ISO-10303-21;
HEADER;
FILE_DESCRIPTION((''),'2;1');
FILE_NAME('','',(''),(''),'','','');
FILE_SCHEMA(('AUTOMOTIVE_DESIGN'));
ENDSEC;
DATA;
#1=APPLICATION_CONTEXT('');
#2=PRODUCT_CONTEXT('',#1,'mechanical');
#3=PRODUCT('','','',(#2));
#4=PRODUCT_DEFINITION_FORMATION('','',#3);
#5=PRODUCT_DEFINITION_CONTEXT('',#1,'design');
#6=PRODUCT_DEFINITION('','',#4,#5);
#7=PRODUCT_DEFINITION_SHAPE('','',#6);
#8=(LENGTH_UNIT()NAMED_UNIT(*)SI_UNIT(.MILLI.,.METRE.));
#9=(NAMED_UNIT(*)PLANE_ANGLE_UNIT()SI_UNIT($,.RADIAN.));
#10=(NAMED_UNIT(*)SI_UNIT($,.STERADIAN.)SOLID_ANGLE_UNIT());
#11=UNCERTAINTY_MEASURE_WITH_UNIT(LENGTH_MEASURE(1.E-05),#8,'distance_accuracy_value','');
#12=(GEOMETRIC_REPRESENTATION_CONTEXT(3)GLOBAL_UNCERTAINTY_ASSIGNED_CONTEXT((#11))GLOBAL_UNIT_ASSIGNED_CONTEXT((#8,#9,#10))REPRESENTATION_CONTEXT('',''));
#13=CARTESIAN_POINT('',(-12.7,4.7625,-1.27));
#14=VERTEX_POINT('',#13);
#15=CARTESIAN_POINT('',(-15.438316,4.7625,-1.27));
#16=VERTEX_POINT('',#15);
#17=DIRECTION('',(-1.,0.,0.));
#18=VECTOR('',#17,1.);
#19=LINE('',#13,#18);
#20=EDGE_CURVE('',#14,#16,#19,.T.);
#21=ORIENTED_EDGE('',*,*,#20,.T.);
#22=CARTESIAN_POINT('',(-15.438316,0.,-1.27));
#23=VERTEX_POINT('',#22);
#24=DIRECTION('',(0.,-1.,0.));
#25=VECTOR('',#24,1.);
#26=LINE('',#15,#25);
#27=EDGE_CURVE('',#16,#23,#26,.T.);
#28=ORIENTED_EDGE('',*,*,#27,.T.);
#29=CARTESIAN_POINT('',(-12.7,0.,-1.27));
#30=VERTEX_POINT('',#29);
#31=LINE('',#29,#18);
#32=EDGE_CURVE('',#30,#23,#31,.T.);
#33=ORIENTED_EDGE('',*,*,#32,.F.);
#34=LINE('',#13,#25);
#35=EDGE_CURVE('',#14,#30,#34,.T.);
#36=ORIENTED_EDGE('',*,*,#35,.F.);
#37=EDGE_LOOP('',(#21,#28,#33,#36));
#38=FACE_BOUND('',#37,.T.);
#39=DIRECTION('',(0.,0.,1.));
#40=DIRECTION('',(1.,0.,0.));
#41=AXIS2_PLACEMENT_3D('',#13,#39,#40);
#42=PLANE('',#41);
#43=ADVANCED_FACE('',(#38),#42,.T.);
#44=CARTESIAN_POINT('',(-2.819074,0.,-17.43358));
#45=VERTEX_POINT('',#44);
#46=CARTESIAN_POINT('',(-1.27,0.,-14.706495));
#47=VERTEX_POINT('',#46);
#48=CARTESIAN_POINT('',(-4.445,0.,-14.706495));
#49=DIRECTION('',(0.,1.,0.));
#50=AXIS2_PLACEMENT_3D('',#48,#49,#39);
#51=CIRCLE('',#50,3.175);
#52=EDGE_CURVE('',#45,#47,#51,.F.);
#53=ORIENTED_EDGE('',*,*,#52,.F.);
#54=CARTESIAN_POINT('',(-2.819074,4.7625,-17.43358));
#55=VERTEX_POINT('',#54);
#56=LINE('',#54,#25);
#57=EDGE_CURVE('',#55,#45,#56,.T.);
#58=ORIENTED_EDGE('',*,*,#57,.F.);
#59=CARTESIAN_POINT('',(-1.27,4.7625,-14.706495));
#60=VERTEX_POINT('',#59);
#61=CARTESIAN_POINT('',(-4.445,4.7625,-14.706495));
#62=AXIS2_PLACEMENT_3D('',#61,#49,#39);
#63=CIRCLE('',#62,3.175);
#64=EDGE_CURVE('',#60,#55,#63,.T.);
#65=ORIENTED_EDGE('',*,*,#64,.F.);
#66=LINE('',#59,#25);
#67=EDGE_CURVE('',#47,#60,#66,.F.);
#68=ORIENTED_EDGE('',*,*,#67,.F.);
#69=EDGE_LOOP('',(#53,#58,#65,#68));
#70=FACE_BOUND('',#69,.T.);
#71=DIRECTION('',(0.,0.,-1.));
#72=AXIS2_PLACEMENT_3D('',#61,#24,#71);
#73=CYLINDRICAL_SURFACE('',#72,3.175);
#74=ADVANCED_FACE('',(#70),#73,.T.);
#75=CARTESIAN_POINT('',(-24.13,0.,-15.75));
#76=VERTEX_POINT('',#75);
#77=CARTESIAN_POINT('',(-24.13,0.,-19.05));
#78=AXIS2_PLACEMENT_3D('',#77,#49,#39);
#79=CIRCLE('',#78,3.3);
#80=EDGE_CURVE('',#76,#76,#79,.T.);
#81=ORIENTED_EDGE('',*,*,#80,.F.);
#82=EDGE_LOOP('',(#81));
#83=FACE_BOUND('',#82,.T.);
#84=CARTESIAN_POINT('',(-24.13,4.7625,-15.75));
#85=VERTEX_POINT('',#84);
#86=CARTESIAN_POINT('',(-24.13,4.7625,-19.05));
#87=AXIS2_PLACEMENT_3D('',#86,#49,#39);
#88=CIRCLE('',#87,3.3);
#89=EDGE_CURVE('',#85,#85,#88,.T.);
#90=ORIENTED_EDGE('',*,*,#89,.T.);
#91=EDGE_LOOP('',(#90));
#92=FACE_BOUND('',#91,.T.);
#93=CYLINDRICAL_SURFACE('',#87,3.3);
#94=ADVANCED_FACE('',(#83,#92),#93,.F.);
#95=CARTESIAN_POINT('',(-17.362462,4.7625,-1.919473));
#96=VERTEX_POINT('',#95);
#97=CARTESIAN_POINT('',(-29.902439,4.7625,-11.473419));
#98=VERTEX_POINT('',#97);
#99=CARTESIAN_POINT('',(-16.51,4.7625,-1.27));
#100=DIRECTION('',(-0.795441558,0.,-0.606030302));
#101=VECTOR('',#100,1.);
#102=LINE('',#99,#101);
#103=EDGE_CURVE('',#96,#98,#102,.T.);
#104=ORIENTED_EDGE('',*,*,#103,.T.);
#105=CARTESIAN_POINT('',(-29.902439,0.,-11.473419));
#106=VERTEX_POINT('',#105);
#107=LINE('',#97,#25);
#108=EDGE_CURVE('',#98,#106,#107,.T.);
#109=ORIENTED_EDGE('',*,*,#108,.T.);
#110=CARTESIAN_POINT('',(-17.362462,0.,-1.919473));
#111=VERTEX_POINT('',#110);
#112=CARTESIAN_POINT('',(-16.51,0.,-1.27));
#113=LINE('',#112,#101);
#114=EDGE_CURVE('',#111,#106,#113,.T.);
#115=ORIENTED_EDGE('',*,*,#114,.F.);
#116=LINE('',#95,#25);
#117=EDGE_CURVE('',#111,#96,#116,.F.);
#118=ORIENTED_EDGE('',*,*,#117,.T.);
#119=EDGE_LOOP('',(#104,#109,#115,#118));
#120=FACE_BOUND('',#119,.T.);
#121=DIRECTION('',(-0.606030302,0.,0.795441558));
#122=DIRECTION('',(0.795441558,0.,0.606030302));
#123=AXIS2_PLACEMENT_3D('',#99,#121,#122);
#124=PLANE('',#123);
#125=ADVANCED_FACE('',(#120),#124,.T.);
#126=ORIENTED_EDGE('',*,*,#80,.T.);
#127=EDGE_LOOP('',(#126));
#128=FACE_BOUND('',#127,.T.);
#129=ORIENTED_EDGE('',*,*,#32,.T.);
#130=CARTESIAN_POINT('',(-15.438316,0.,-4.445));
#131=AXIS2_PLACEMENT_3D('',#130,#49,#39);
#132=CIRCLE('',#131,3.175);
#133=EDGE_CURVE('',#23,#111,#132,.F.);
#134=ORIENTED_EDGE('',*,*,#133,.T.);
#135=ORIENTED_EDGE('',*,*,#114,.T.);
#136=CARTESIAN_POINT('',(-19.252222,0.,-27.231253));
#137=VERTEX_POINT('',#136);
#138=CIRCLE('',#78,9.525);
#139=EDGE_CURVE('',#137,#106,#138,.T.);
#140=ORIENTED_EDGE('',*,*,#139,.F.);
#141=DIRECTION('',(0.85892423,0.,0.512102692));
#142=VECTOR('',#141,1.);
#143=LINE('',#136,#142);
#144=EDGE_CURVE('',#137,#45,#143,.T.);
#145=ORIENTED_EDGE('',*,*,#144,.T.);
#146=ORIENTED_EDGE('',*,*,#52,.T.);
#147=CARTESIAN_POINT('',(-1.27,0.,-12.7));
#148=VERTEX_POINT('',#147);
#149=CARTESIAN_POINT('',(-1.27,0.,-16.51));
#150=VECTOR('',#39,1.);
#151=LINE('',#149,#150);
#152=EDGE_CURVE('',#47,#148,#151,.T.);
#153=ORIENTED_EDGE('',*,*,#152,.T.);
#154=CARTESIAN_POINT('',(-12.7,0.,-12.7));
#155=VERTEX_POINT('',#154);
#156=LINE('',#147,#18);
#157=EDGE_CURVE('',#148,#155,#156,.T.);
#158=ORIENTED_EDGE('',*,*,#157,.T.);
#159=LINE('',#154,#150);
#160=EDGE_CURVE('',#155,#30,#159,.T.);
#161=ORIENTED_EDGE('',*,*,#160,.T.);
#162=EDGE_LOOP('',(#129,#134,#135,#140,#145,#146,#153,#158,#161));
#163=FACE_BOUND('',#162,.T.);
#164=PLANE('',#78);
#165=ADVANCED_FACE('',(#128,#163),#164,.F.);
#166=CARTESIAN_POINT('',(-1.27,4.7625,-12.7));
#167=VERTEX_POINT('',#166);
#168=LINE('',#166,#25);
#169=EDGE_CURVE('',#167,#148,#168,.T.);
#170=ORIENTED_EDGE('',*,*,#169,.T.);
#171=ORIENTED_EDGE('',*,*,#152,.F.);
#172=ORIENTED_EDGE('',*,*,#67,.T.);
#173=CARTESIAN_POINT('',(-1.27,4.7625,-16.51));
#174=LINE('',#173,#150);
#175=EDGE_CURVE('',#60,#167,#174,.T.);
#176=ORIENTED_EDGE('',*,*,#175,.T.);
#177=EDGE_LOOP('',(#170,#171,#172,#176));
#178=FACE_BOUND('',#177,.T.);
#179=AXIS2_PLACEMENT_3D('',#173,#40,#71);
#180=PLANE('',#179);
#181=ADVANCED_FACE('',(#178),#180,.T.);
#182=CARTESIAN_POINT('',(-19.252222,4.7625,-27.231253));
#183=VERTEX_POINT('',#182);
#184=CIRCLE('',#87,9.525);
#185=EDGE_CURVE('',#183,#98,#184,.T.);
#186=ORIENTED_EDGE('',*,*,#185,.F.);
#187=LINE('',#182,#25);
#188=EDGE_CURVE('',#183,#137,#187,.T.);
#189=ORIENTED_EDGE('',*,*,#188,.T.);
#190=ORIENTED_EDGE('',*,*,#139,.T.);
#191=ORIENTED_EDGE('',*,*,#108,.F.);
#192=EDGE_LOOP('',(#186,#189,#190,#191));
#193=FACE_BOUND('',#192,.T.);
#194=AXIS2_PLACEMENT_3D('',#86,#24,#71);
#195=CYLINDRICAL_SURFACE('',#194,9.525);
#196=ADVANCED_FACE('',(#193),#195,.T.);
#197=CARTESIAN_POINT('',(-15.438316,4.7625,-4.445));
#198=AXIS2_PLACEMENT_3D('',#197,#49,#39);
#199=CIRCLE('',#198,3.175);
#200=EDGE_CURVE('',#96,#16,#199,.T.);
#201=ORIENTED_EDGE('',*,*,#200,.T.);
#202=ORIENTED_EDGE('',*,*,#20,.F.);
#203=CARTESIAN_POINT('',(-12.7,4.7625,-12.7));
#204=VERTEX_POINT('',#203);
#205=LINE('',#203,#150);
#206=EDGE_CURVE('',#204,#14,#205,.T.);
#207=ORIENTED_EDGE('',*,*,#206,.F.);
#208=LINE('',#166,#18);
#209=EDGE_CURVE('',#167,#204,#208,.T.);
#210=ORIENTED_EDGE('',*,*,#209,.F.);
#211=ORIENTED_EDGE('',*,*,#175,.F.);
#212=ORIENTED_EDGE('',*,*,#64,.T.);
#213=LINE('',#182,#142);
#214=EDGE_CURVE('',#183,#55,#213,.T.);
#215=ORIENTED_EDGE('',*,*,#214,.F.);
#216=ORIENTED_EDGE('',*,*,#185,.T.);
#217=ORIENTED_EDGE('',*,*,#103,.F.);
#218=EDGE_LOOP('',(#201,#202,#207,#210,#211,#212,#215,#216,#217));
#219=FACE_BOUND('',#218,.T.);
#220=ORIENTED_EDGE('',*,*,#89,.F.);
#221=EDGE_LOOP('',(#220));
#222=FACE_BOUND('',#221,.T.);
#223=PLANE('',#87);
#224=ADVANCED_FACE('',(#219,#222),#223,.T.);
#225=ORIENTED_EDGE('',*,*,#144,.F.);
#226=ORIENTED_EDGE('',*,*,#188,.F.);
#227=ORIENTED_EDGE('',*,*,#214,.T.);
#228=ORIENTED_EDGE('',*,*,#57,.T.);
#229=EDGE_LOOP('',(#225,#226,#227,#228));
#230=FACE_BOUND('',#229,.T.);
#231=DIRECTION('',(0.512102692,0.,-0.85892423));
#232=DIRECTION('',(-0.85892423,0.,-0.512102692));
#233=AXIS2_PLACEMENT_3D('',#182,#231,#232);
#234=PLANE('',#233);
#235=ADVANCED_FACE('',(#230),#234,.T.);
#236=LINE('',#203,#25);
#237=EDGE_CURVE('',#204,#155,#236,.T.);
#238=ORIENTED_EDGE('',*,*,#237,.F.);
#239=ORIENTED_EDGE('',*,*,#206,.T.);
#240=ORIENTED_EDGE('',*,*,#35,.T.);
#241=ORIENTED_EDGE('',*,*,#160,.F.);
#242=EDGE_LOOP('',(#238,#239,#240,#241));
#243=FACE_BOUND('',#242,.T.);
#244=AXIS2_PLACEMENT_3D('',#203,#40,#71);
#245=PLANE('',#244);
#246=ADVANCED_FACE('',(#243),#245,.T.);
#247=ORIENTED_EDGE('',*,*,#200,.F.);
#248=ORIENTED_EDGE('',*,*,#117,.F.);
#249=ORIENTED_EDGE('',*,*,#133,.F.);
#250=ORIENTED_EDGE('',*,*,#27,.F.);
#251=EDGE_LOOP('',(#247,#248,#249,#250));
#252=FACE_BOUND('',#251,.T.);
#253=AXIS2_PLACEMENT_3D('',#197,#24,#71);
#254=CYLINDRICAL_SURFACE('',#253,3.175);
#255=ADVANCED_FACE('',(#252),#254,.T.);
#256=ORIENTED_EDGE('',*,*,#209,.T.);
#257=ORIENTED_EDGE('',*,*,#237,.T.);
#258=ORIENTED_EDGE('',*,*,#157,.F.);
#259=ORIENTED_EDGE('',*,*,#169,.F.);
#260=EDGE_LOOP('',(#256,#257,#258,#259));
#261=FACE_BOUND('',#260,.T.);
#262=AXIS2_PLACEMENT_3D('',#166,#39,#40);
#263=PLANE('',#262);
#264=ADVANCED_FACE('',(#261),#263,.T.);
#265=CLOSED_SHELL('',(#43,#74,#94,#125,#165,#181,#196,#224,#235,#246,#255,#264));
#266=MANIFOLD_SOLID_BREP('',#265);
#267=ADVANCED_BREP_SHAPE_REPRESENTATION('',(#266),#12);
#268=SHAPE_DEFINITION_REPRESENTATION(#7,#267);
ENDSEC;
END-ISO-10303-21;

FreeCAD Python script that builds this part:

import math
import FreeCAD as App
import Part
import Sketcher
Q = App.Units.Quantity


def edges_at(feature, points):
    """Names of the edges that pass closest to the given points."""
    edges = feature.Shape.Edges
    near = lambda p: min(range(len(edges)), key=lambda i: edges[i].distToShape(Part.Vertex(*p))[0])
    return sorted({f"Edge{near(p) + 1}" for p in points})

doc = App.newDocument("Part")
body = doc.addObject("PartDesign::Body", "Body")

# Sketch on XZ plane
sketch1 = body.newObject("Sketcher::SketchObject", "Sketch")
sketch1.AttachmentSupport = (doc.getObject("XZ_Plane"), [""])
sketch1.MapMode = "FlatFace"
sketch1.addGeometry([
    Part.LineSegment(App.Vector(-1.3, -16.5, 0), App.Vector(-19.3, -27.2, 0)),  # 0
    Part.ArcOfCircle(Part.Circle(App.Vector(-24.1, -19.1, 0), App.Vector(0, 0, 1), 9.5), math.radians(127), math.radians(301)),  # 1
    Part.LineSegment(App.Vector(-29.9, -11.5, 0), App.Vector(-16.5, -1.3, 0)),  # 2
    Part.LineSegment(App.Vector(-16.5, -1.3, 0), App.Vector(-12.7, -1.3, 0)),  # 3
    Part.LineSegment(App.Vector(-12.7, -1.3, 0), App.Vector(-12.7, -12.7, 0)),  # 4
    Part.LineSegment(App.Vector(-12.7, -12.7, 0), App.Vector(-1.3, -12.7, 0)),  # 5
    Part.LineSegment(App.Vector(-1.3, -12.7, 0), App.Vector(-1.3, -16.5, 0)),  # 6
], False)
sketch1.addConstraint([
    Sketcher.Constraint("Tangent", 0, 2, 1, 2),
    Sketcher.Constraint("Tangent", 1, 1, 2, 1),
    Sketcher.Constraint("Coincident", 2, 2, 3, 1),
    Sketcher.Constraint("Coincident", 3, 2, 4, 1),
    Sketcher.Constraint("Coincident", 4, 2, 5, 1),
    Sketcher.Constraint("Coincident", 5, 2, 6, 1),
    Sketcher.Constraint("Coincident", 6, 2, 0, 1),
    Sketcher.Constraint("Horizontal", 3),
    Sketcher.Constraint("Vertical", 4),
    Sketcher.Constraint("Horizontal", 5),
    Sketcher.Constraint("Vertical", 6),
    Sketcher.Constraint("Equal", 5, 4),
    Sketcher.Constraint("Equal", 3, 6),
    Sketcher.Constraint("Radius", 1, Q("0.375 in")),
    Sketcher.Constraint("DistanceX", 3, 1, 3, 2, Q("0.15 in")),
    Sketcher.Constraint("DistanceX", 5, 1, 5, 2, Q("0.45 in")),
    Sketcher.Constraint("DistanceX", 3, 2, -1, 1, Q("0.5 in")),
    Sketcher.Constraint("DistanceY", 4, 2, -1, 1, Q("0.5 in")),
    Sketcher.Constraint("DistanceX", 1, 3, 2, 2, Q("0.3 in")),
    Sketcher.Constraint("DistanceY", 1, 3, 2, 2, Q("0.7 in")),
])
pad1 = body.newObject("PartDesign::Pad", "Pad")
pad1.Profile = sketch1
pad1.Length = Q("0.1875 in")
pad1.Reversed = True
doc.recompute()

fillet = body.newObject("PartDesign::Fillet", "Fillet")
fillet.Base = (pad1, edges_at(pad1, [(-16.51, 2.381, -1.27), (-1.27, 2.381, -16.51)]))
fillet.Radius = Q("0.125 in")

# Sketch on XZ plane
sketch2 = body.newObject("Sketcher::SketchObject", "Sketch001")
sketch2.AttachmentSupport = (doc.getObject("XZ_Plane"), [""])
sketch2.MapMode = "FlatFace"
sketch2.AttachmentOffset = App.Placement(App.Vector(0, 0, -0.1875 * 25.4), App.Rotation())
sketch2.addGeometry(Part.Circle(App.Vector(-24.1, -19.1, 0), App.Vector(0, 0, 1), 3.3), False)
sketch2.addConstraint([
    Sketcher.Constraint("Diameter", 0, Q("6.6 mm")),
    Sketcher.Constraint("DistanceX", 0, 3, -1, 1, Q("0.95 in")),
    Sketcher.Constraint("DistanceY", 0, 3, -1, 1, Q("0.75 in")),
])
doc.recompute()
hole = body.newObject("PartDesign::Hole", "Hole")
hole.Profile = sketch2
hole.ThreadType = "None"
hole.Diameter = 6.6
hole.DepthType = "ThroughAll"
hole.Reversed = True

doc.recompute()
